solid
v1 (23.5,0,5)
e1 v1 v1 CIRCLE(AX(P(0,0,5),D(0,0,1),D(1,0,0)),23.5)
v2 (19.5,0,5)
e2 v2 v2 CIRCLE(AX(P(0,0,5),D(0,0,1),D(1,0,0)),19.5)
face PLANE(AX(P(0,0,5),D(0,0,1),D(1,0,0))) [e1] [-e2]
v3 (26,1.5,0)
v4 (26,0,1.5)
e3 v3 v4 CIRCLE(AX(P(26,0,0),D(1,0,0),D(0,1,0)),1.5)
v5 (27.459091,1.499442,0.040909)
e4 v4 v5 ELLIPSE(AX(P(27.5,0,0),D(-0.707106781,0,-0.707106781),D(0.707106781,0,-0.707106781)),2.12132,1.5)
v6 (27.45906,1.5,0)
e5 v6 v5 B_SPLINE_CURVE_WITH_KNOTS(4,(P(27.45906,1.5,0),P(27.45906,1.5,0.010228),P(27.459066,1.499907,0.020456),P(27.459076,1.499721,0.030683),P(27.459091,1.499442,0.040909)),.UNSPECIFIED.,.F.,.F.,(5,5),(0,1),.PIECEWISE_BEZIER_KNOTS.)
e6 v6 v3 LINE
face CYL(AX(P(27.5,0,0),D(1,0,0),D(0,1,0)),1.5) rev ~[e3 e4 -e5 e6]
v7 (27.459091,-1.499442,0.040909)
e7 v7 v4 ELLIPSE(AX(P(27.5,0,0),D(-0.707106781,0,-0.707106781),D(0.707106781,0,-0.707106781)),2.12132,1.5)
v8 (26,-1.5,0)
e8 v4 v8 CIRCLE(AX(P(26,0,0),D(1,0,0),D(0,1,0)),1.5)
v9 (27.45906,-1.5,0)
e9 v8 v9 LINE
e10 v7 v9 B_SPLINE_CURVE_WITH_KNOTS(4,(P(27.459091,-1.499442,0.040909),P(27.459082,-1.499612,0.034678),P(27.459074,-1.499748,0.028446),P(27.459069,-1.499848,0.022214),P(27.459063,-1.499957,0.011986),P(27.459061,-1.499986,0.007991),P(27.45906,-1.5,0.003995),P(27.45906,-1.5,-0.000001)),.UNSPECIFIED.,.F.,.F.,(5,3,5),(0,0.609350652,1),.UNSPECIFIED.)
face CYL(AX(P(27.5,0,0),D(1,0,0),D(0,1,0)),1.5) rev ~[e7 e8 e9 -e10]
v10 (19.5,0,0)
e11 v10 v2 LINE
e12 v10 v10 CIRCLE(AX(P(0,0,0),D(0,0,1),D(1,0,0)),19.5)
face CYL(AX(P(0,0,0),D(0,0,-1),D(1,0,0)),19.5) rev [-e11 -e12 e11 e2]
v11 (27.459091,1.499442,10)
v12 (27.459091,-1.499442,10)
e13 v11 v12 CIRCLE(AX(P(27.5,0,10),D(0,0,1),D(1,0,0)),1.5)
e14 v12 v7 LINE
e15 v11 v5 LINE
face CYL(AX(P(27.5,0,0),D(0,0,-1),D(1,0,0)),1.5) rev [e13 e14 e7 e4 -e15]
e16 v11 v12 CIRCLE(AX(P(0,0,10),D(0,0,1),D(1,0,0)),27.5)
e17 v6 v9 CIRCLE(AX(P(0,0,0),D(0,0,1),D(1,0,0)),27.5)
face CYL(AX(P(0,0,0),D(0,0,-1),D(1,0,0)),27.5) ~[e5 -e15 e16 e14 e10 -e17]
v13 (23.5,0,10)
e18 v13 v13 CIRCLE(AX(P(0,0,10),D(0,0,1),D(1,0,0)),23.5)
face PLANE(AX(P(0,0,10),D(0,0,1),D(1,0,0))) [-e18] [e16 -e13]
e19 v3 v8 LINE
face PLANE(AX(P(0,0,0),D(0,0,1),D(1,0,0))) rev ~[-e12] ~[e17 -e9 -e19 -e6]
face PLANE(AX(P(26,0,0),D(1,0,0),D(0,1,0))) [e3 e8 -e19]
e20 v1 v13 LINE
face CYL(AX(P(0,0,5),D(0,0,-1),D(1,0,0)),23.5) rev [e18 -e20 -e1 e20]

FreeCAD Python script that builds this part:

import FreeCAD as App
import Part
import Sketcher
from FreeCAD import Vector
Q = App.Units.Quantity

doc = App.newDocument("Part")
params = doc.addObject("Spreadsheet::Sheet", "Params")
for row, (alias, value) in enumerate([
    ("sketch1_diameter", "55 mm"),
    ("sketch1_diameter2", "39 mm"),
    ("pad1_length", "10 mm"),
    ("sketch2_diameter", "3 mm"),
    ("pocket1_length", "10 mm"),
    ("sketch3_diameter", "3 mm"),
    ("pocket2_length", "1.5 mm"),
    ("sketch4_diameter", "47 mm"),
    ("sketch4_diameter2", "39 mm"),
    ("pocket3_length", "5 mm"),
], start=1):
    params.set(f"A{row}", alias)
    params.set(f"B{row}", "=" + value)
    params.setAlias(f"B{row}", alias)

body = doc.addObject("PartDesign::Body", "Body")

# Sketch on XY plane
sketch1 = doc.addObject("Sketcher::SketchObject", "Sketch")
body.addObject(sketch1)
sketch1.AttachmentSupport = (doc.XY_Plane, [""])
sketch1.MapMode = "FlatFace"
sketch1.addGeometry(Part.Circle(Vector(0, 0, 0), Vector(0, 0, 1), 28), False)
sketch1.addGeometry(Part.Circle(Vector(0, 0, 0), Vector(0, 0, 1), 20), False)
sketch1.addConstraint(Sketcher.Constraint("Coincident", 0, 3, -1, 1))
sketch1.addConstraint(Sketcher.Constraint("Coincident", 1, 3, -1, 1))
sketch1.addConstraint(Sketcher.Constraint("Diameter", 0, Q("55 mm")))
sketch1.addConstraint(Sketcher.Constraint("Diameter", 1, Q("39 mm")))
sketch1.setExpression("Constraints[2]", "Params.sketch1_diameter")
sketch1.setExpression("Constraints[3]", "Params.sketch1_diameter2")
pad1 = doc.addObject("PartDesign::Pad", "Pad")
body.addObject(pad1)
pad1.Profile = sketch1
pad1.setExpression("Length", "Params.pad1_length")

# Sketch on XY plane
sketch2 = doc.addObject("Sketcher::SketchObject", "Sketch001")
body.addObject(sketch2)
sketch2.AttachmentSupport = (doc.XY_Plane, [""])
sketch2.MapMode = "FlatFace"
sketch2.addGeometry(Part.Circle(Vector(27.5, 0, 0), Vector(0, 0, 1), 1.5), False)
sketch2.addConstraint(Sketcher.Constraint("PointOnObject", 0, 3, -1))
sketch2.addConstraint(Sketcher.Constraint("Diameter", 0, Q("3 mm")))
sketch2.addConstraint(Sketcher.Constraint("DistanceX", -1, 1, 0, 3, Q("27.5 mm")))
sketch2.setExpression("Constraints[1]", "Params.sketch2_diameter")
pocket1 = doc.addObject("PartDesign::Pocket", "Pocket")
body.addObject(pocket1)
pocket1.Profile = sketch2
pocket1.setExpression("Length", "Params.pocket1_length")
pocket1.Reversed = True

# Sketch on YZ plane
sketch3 = doc.addObject("Sketcher::SketchObject", "Sketch002")
body.addObject(sketch3)
sketch3.AttachmentSupport = (doc.YZ_Plane, [""])
sketch3.MapMode = "FlatFace"
sketch3.AttachmentOffset = App.Placement(Vector(0, 0, 27.5), App.Rotation())
sketch3.addGeometry(Part.Circle(Vector(0, 0, 0), Vector(0, 0, 1), 1.5), False)
sketch3.addConstraint(Sketcher.Constraint("Coincident", 0, 3, -1, 1))
sketch3.addConstraint(Sketcher.Constraint("Diameter", 0, Q("3 mm")))
sketch3.setExpression("Constraints[1]", "Params.sketch3_diameter")
pocket2 = doc.addObject("PartDesign::Pocket", "Pocket001")
body.addObject(pocket2)
pocket2.Profile = sketch3
pocket2.setExpression("Length", "Params.pocket2_length")

# Sketch on XY plane
sketch4 = doc.addObject("Sketcher::SketchObject", "Sketch003")
body.addObject(sketch4)
sketch4.AttachmentSupport = (doc.XY_Plane, [""])
sketch4.MapMode = "FlatFace"
sketch4.AttachmentOffset = App.Placement(Vector(0, 0, 5), App.Rotation())
sketch4.addGeometry(Part.Circle(Vector(0, 0, 0), Vector(0, 0, 1), 24), False)
sketch4.addGeometry(Part.Circle(Vector(0, 0, 0), Vector(0, 0, 1), 20), False)
sketch4.addConstraint(Sketcher.Constraint("Coincident", 0, 3, -1, 1))
sketch4.addConstraint(Sketcher.Constraint("Coincident", 1, 3, -1, 1))
sketch4.addConstraint(Sketcher.Constraint("Diameter", 0, Q("47 mm")))
sketch4.addConstraint(Sketcher.Constraint("Diameter", 1, Q("39 mm")))
sketch4.setExpression("Constraints[2]", "Params.sketch4_diameter")
sketch4.setExpression("Constraints[3]", "Params.sketch4_diameter2")
pocket3 = doc.addObject("PartDesign::Pocket", "Pocket002")
body.addObject(pocket3)
pocket3.Profile = sketch4
pocket3.setExpression("Length", "Params.pocket3_length")
pocket3.Reversed = True

doc.recompute()
